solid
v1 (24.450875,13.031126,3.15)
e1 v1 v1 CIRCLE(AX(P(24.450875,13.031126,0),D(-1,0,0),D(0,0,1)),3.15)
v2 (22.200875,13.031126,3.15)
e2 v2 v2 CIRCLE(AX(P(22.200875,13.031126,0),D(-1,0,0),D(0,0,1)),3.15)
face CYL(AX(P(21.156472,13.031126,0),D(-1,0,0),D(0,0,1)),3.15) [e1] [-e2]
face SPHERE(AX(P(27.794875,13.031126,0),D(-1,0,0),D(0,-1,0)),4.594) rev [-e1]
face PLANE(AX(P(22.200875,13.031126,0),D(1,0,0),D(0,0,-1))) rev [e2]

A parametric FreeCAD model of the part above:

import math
import FreeCAD as App
import Part
import Sketcher

doc = App.newDocument("Part")
body = doc.addObject("PartDesign::Body", "Body")

sketch1 = body.newObject("Sketcher::SketchObject", "Sketch")
sketch1.AttachmentSupport = (doc.getObject("XY_Plane"), [""])
sketch1.MapMode = "FlatFace"
sketch1.addGeometry([
    Part.LineSegment(App.Vector(22.200875, 16.181126, 0), App.Vector(22.200875, 13.031126, 0)),
    Part.LineSegment(App.Vector(22.200875, 13.031126, 0), App.Vector(23.200875, 13.031126, 0)),
    Part.ArcOfCircle(Part.Circle(App.Vector(27.794875, 13.031126, 0), App.Vector(0, 0, 1), 4.594), math.radians(136.71113), math.radians(180)),
    Part.LineSegment(App.Vector(24.450875, 16.181126, 0), App.Vector(22.200875, 16.181126, 0)),
], False)
sketch1.addGeometry(Part.LineSegment(App.Vector(22.200875, 13.031126, 0), App.Vector(27.794875, 13.031126, 0)), True)
sketch1.addConstraint([
    Sketcher.Constraint("Coincident", 0, 2, 1, 1),
    Sketcher.Constraint("Coincident", 1, 2, 2, 2),
    Sketcher.Constraint("Coincident", 2, 1, 3, 1),
    Sketcher.Constraint("Coincident", 3, 2, 0, 1),
    Sketcher.Constraint("Vertical", 0),
    Sketcher.Constraint("Horizontal", 1),
    Sketcher.Constraint("Horizontal", 3),
    Sketcher.Constraint("Horizontal", 4),
    Sketcher.Constraint("Coincident", 4, 1, 0, 2),
    Sketcher.Constraint("Coincident", 4, 2, 2, 3),
    Sketcher.Constraint("DistanceX", 1, 1, 1, 2, 1.0),
    Sketcher.Constraint("Radius", 2, 4.594),
    Sketcher.Constraint("DistanceX", 3, 2, 3, 1, 2.25),
    Sketcher.Constraint("DistanceX", -1, 1, 2, 3, 27.794875),
    Sketcher.Constraint("DistanceY", -1, 1, 2, 3, 13.031126),
])
revolution = body.newObject("PartDesign::Revolution", "Revolution")
revolution.Profile = sketch1
revolution.ReferenceAxis = (sketch1, ["Axis0"])
revolution.Angle = 360

doc.recompute()
